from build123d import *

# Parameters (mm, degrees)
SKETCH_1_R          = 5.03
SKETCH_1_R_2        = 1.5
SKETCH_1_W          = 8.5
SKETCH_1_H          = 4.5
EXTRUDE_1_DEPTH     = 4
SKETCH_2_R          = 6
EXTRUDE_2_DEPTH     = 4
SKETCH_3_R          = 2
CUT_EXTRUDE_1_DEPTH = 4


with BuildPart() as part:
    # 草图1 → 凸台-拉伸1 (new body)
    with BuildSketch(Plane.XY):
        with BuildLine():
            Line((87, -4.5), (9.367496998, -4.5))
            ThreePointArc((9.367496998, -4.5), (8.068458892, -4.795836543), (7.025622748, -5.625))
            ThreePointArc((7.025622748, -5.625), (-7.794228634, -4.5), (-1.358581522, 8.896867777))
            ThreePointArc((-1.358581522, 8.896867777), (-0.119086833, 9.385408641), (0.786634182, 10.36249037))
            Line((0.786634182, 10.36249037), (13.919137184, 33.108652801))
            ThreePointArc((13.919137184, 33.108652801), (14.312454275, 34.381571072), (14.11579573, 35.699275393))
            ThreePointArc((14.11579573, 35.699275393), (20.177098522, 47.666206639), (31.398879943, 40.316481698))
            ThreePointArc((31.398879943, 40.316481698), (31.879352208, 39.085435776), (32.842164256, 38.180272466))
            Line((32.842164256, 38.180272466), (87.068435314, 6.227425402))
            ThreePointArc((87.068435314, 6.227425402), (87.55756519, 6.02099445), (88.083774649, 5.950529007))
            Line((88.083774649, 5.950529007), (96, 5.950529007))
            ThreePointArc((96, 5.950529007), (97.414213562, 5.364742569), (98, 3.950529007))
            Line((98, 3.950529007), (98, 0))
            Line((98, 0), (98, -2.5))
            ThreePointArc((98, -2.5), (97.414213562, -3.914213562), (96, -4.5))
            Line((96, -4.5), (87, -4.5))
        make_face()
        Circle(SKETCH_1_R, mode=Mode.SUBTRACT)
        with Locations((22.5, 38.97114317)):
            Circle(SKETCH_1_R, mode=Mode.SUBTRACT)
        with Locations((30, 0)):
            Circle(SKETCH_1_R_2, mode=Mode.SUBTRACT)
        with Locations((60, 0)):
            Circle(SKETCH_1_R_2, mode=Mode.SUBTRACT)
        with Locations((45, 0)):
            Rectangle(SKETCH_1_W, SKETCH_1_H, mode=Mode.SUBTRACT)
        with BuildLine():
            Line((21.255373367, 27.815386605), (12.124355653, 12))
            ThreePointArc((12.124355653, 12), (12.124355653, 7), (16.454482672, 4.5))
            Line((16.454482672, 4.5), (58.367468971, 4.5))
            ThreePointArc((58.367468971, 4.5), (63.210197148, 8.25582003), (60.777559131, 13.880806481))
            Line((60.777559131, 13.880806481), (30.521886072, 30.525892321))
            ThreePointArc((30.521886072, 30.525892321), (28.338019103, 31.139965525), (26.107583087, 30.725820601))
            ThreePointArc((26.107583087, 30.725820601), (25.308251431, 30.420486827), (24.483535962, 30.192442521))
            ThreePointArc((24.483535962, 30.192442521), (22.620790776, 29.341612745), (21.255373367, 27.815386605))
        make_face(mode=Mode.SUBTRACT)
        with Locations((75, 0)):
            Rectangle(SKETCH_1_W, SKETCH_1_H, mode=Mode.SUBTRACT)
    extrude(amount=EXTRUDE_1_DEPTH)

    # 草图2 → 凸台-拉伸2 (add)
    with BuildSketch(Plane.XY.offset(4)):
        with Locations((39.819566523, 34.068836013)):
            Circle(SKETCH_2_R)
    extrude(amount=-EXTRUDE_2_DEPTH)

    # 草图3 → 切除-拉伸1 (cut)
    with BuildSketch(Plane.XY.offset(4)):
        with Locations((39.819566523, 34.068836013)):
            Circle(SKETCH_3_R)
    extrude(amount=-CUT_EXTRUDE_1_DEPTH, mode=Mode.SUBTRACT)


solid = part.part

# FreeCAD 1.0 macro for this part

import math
import FreeCAD as App
import Part
import Sketcher
from FreeCAD import Vector
Q = App.Units.Quantity

doc = App.newDocument("Part")
body = doc.addObject("PartDesign::Body", "Body")

sketch1 = doc.addObject("Sketcher::SketchObject", "Sketch")
body.addObject(sketch1)
sketch1.AttachmentSupport = (doc.XY_Plane, [""])
sketch1.MapMode = "FlatFace"
sketch1.addGeometry(Part.ArcOfCircle(Part.Circle(Vector(9.367497, -7.5, 0), Vector(0, 0, 1), 3), math.radians(90), math.radians(141.317813)), False)
sketch1.addGeometry(Part.LineSegment(Vector(9.367497, -4.5, 0), Vector(96, -4.5, 0)), False)
sketch1.addGeometry(Part.ArcOfCircle(Part.Circle(Vector(96, -2.5, 0), Vector(0, 0, 1), 2), math.radians(-90), math.radians(0)), False)
sketch1.addGeometry(Part.LineSegment(Vector(98, -2.5, 0), Vector(98, 3.950529, 0)), False)
sketch1.addGeometry(Part.ArcOfCircle(Part.Circle(Vector(96, 3.950529, 0), Vector(0, 0, 1), 2), math.radians(0), math.radians(90)), False)
sketch1.addGeometry(Part.LineSegment(Vector(96, 5.950529, 0), Vector(88.083775, 5.950529, 0)), False)
sketch1.addGeometry(Part.ArcOfCircle(Part.Circle(Vector(88.083775, 7.950529, 0), Vector(0, 0, 1), 2), math.radians(-120.508732), math.radians(-90)), False)
sketch1.addGeometry(Part.LineSegment(Vector(87.068435, 6.227425, 0), Vector(32.842164, 38.180272, 0)), False)
sketch1.addGeometry(Part.ArcOfCircle(Part.Circle(Vector(34.365173, 40.764928, 0), Vector(0, 0, 1), 3), math.radians(-171.403088), math.radians(-120.508732)), False)
sketch1.addGeometry(Part.ArcOfCircle(Part.Circle(Vector(22.5, 38.971143, 0), Vector(0, 0, 1), 9), math.radians(8.596912), math.radians(201.317813)), False)
sketch1.addGeometry(Part.ArcOfCircle(Part.Circle(Vector(11.321061, 34.608653, 0), Vector(0, 0, 1), 3), math.radians(-30), math.radians(21.317813)), False)
sketch1.addGeometry(Part.LineSegment(Vector(13.919137, 33.108653, 0), Vector(0.786634, 10.36249, 0)), False)
sketch1.addGeometry(Part.ArcOfCircle(Part.Circle(Vector(-1.811442, 11.86249, 0), Vector(0, 0, 1), 3), math.radians(-81.317813), math.radians(-30)), False)
sketch1.addGeometry(Part.ArcOfCircle(Part.Circle(Vector(0, 0, 0), Vector(0, 0, 1), 9), math.radians(98.682187), math.radians(321.317813)), False)
sketch1.addGeometry(Part.LineSegment(Vector(70.75, -2.25, 0), Vector(70.75, 2.25, 0)), False)
sketch1.addGeometry(Part.LineSegment(Vector(70.75, 2.25, 0), Vector(79.25, 2.25, 0)), False)
sketch1.addGeometry(Part.LineSegment(Vector(79.25, 2.25, 0), Vector(79.25, -2.25, 0)), False)
sketch1.addGeometry(Part.LineSegment(Vector(79.25, -2.25, 0), Vector(70.75, -2.25, 0)), False)
sketch1.addGeometry(Part.Circle(Vector(60, 0, 0), Vector(0, 0, 1), 1.5), False)
sketch1.addGeometry(Part.LineSegment(Vector(40.75, -2.25, 0), Vector(40.75, 2.25, 0)), False)
sketch1.addGeometry(Part.LineSegment(Vector(40.75, 2.25, 0), Vector(49.25, 2.25, 0)), False)
sketch1.addGeometry(Part.LineSegment(Vector(49.25, 2.25, 0), Vector(49.25, -2.25, 0)), False)
sketch1.addGeometry(Part.LineSegment(Vector(49.25, -2.25, 0), Vector(40.75, -2.25, 0)), False)
sketch1.addGeometry(Part.ArcOfCircle(Part.Circle(Vector(25.5855, 25.315387, 0), Vector(0, 0, 1), 5), math.radians(102.73211), math.radians(150)), False)
sketch1.addGeometry(Part.ArcOfCircle(Part.Circle(Vector(22.5, 38.971143, 0), Vector(0, 0, 1), 9), math.radians(-77.26789), math.radians(-66.369138)), False)
sketch1.addGeometry(Part.ArcOfCircle(Part.Circle(Vector(28.111796, 26.145086, 0), Vector(0, 0, 1), 5), math.radians(61.182714), math.radians(113.630862)), False)
sketch1.addGeometry(Part.LineSegment(Vector(30.521886, 30.525892, 0), Vector(60.777559, 13.880806, 0)), False)
sketch1.addGeometry(Part.ArcOfCircle(Part.Circle(Vector(58.367469, 9.5, 0), Vector(0, 0, 1), 5), math.radians(-90), math.radians(61.182714)), False)
sketch1.addGeometry(Part.LineSegment(Vector(58.367469, 4.5, 0), Vector(16.454483, 4.5, 0)), False)
sketch1.addGeometry(Part.ArcOfCircle(Part.Circle(Vector(16.454483, 9.5, 0), Vector(0, 0, 1), 5), math.radians(150), math.radians(270)), False)
sketch1.addGeometry(Part.LineSegment(Vector(12.124356, 12, 0), Vector(21.255373, 27.815387, 0)), False)
sketch1.addGeometry(Part.Circle(Vector(30, 0, 0), Vector(0, 0, 1), 1.5), False)
sketch1.addGeometry(Part.Circle(Vector(0, 0, 0), Vector(0, 0, 1), 5.03), False)
sketch1.addGeometry(Part.Circle(Vector(22.5, 38.971143, 0), Vector(0, 0, 1), 5.03), False)
sketch1.addConstraint(Sketcher.Constraint("Tangent", 0, 1, 1, 1))
sketch1.addConstraint(Sketcher.Constraint("Tangent", 1, 2, 2, 1))
sketch1.addConstraint(Sketcher.Constraint("Tangent", 2, 2, 3, 1))
sketch1.addConstraint(Sketcher.Constraint("Tangent", 3, 2, 4, 1))
sketch1.addConstraint(Sketcher.Constraint("Tangent", 4, 2, 5, 1))
sketch1.addConstraint(Sketcher.Constraint("Tangent", 5, 2, 6, 2))
sketch1.addConstraint(Sketcher.Constraint("Tangent", 6, 1, 7, 1))
sketch1.addConstraint(Sketcher.Constraint("Tangent", 7, 2, 8, 2))
sketch1.addConstraint(Sketcher.Constraint("Tangent", 8, 1, 9, 1))
sketch1.addConstraint(Sketcher.Constraint("Tangent", 9, 2, 10, 2))
sketch1.addConstraint(Sketcher.Constraint("Tangent", 10, 1, 11, 1))
sketch1.addConstraint(Sketcher.Constraint("Tangent", 11, 2, 12, 2))
sketch1.addConstraint(Sketcher.Constraint("Tangent", 12, 1, 13, 1))
sketch1.addConstraint(Sketcher.Constraint("Tangent", 13, 2, 0, 2))
sketch1.addConstraint(Sketcher.Constraint("Coincident", 14, 2, 15, 1))
sketch1.addConstraint(Sketcher.Constraint("Coincident", 15, 2, 16, 1))
sketch1.addConstraint(Sketcher.Constraint("Coincident", 16, 2, 17, 1))
sketch1.addConstraint(Sketcher.Constraint("Coincident", 17, 2, 14, 1))
sketch1.addConstraint(Sketcher.Constraint("Coincident", 19, 2, 20, 1))
sketch1.addConstraint(Sketcher.Constraint("Coincident", 20, 2, 21, 1))
sketch1.addConstraint(Sketcher.Constraint("Coincident", 21, 2, 22, 1))
sketch1.addConstraint(Sketcher.Constraint("Coincident", 22, 2, 19, 1))
sketch1.addConstraint(Sketcher.Constraint("Tangent", 23, 1, 24, 1))
sketch1.addConstraint(Sketcher.Constraint("Tangent", 24, 2, 25, 2))
sketch1.addConstraint(Sketcher.Constraint("Tangent", 25, 1, 26, 1))
sketch1.addConstraint(Sketcher.Constraint("Tangent", 26, 2, 27, 2))
sketch1.addConstraint(Sketcher.Constraint("Tangent", 27, 1, 28, 1))
sketch1.addConstraint(Sketcher.Constraint("Tangent", 28, 2, 29, 2))
sketch1.addConstraint(Sketcher.Constraint("Tangent", 29, 1, 30, 1))
sketch1.addConstraint(Sketcher.Constraint("Tangent", 30, 2, 23, 2))
sketch1.addConstraint(Sketcher.Constraint("Horizontal", 1))
sketch1.addConstraint(Sketcher.Constraint("Vertical", 3))
sketch1.addConstraint(Sketcher.Constraint("Horizontal", 5))
sketch1.addConstraint(Sketcher.Constraint("Vertical", 14))
sketch1.addConstraint(Sketcher.Constraint("Horizontal", 15))
sketch1.addConstraint(Sketcher.Constraint("Vertical", 16))
sketch1.addConstraint(Sketcher.Constraint("Horizontal", 17))
sketch1.addConstraint(Sketcher.Constraint("Vertical", 19))
sketch1.addConstraint(Sketcher.Constraint("Horizontal", 20))
sketch1.addConstraint(Sketcher.Constraint("Vertical", 21))
sketch1.addConstraint(Sketcher.Constraint("Horizontal", 22))
sketch1.addConstraint(Sketcher.Constraint("Horizontal", 28))
sketch1.addConstraint(Sketcher.Constraint("Coincident", 13, 3, -1, 1))
sketch1.addConstraint(Sketcher.Constraint("Coincident", 32, 3, -1, 1))
sketch1.addConstraint(Sketcher.Constraint("Coincident", 24, 3, 9, 3))
sketch1.addConstraint(Sketcher.Constraint("Coincident", 33, 3, 9, 3))
sketch1.addConstraint(Sketcher.Constraint("Equal", 2, 4))
sketch1.addConstraint(Sketcher.Constraint("Equal", 4, 6))
sketch1.addConstraint(Sketcher.Constraint("Equal", 0, 8))
sketch1.addConstraint(Sketcher.Constraint("Equal", 8, 10))
sketch1.addConstraint(Sketcher.Constraint("Equal", 10, 12))
sketch1.addConstraint(Sketcher.Constraint("Equal", 9, 13))
sketch1.addConstraint(Sketcher.Constraint("Equal", 13, 24))
sketch1.addConstraint(Sketcher.Constraint("Equal", 23, 25))
sketch1.addConstraint(Sketcher.Constraint("Equal", 25, 27))
sketch1.addConstraint(Sketcher.Constraint("Equal", 27, 29))
sketch1.addConstraint(Sketcher.Constraint("Equal", 18, 31))
sketch1.addConstraint(Sketcher.Constraint("Equal", 32, 33))
sketch1.addConstraint(Sketcher.Constraint("PointOnObject", 18, 3, -1))
sketch1.addConstraint(Sketcher.Constraint("PointOnObject", 31, 3, -1))
sketch1.addConstraint(Sketcher.Constraint("Parallel", 11, 30))
sketch1.addConstraint(Sketcher.Constraint("Horizontal", 15, 2, 19, 2))
sketch1.addConstraint(Sketcher.Constraint("Horizontal", 17, 2, 21, 2))
sketch1.addConstraint(Sketcher.Constraint("Equal", 17, 20))
sketch1.addConstraint(Sketcher.Constraint("Diameter", 18, Q("3 mm")))
sketch1.addConstraint(Sketcher.Constraint("Radius", 0, Q("3 mm")))
sketch1.addConstraint(Sketcher.Constraint("Radius", 2, Q("2 mm")))
sketch1.addConstraint(Sketcher.Constraint("Radius", 9, Q("9 mm")))
sketch1.addConstraint(Sketcher.Constraint("Radius", 23, Q("5 mm")))
sketch1.addConstraint(Sketcher.Constraint("Diameter", 32, Q("10.06 mm")))
sketch1.addConstraint(Sketcher.Constraint("Angle", 11, Q("-120 deg")))
sketch1.addConstraint(Sketcher.Constraint("DistanceX", 15, 1, 15, 2, Q("8.5 mm")))
sketch1.addConstraint(Sketcher.Constraint("DistanceY", 14, 1, 14, 2, Q("4.5 mm")))
sketch1.addConstraint(Sketcher.Constraint("DistanceX", -1, 1, 2, 3, Q("96 mm")))
sketch1.addConstraint(Sketcher.Constraint("DistanceX", -1, 1, 18, 3, Q("60 mm")))
sketch1.addConstraint(Sketcher.Constraint("DistanceX", -1, 1, 31, 3, Q("30 mm")))
sketch1.addConstraint(Sketcher.Constraint("DistanceY", -1, 1, 29, 1, Q("12 mm")))
sketch1.addConstraint(Sketcher.Constraint("DistanceY", 0, 3, 29, 3, Q("17 mm")))
sketch1.addConstraint(Sketcher.Constraint("DistanceX", -1, 1, 9, 3, Q("22.5 mm")))
sketch1.addConstraint(Sketcher.Constraint("DistanceX", 20, 2, 14, 2, Q("21.5 mm")))
sketch1.addConstraint(Sketcher.Constraint("DistanceX", -1, 1, 14, 2, Q("70.75 mm")))
sketch1.addConstraint(Sketcher.Constraint("DistanceY", -1, 1, 14, 2, Q("2.25 mm")))
sketch1.addConstraint(Sketcher.Constraint("DistanceY", 3, 1, 3, 2, Q("6.450529 mm")))
sketch1.addConstraint(Sketcher.Constraint("DistanceX", -1, 1, 23, 3, Q("25.5855 mm")))
sketch1.addConstraint(Sketcher.Constraint("DistanceX", 8, 3, 6, 3, Q("53.718601 mm")))
sketch1.addConstraint(Sketcher.Constraint("DistanceY", 6, 3, 8, 3, Q("32.814399 mm")))
sketch1.addConstraint(Sketcher.Constraint("DistanceY", 23, 3, 25, 3, Q("0.829699 mm")))
sketch1.addConstraint(Sketcher.Constraint("Distance", 26, Q("34.532081 mm")))
sketch1.addConstraint(Sketcher.Constraint("DistanceX", 5, 2, 5, 1, Q("7.916225 mm")))
sketch1.addConstraint(Sketcher.Constraint("DistanceX", -1, 1, 10, 3, Q("11.321061 mm")))
pad1 = doc.addObject("PartDesign::Pad", "Pad")
body.addObject(pad1)
pad1.Profile = sketch1
pad1.Length = 4

sketch2 = doc.addObject("Sketcher::SketchObject", "Sketch001")
body.addObject(sketch2)
sketch2.AttachmentSupport = (doc.XY_Plane, [""])
sketch2.MapMode = "FlatFace"
sketch2.AttachmentOffset = App.Placement(Vector(0, 0, 4), App.Rotation())
sketch2.addGeometry(Part.Circle(Vector(39.819567, 34.068836, 0), Vector(0, 0, 1), 6), False)
sketch2.addConstraint(Sketcher.Constraint("Diameter", 0, Q("12 mm")))
sketch2.addConstraint(Sketcher.Constraint("DistanceX", -1, 1, 0, 3, Q("39.819567 mm")))
sketch2.addConstraint(Sketcher.Constraint("DistanceY", -1, 1, 0, 3, Q("34.068836 mm")))
pad2 = doc.addObject("PartDesign::Pad", "Pad001")
body.addObject(pad2)
pad2.Profile = sketch2
pad2.Length = 4
pad2.Reversed = True

sketch3 = doc.addObject("Sketcher::SketchObject", "Sketch002")
body.addObject(sketch3)
sketch3.AttachmentSupport = (doc.XY_Plane, [""])
sketch3.MapMode = "FlatFace"
sketch3.AttachmentOffset = App.Placement(Vector(0, 0, 4), App.Rotation())
sketch3.addGeometry(Part.Circle(Vector(39.819567, 34.068836, 0), Vector(0, 0, 1), 2), False)
sketch3.addConstraint(Sketcher.Constraint("Diameter", 0, Q("4 mm")))
sketch3.addConstraint(Sketcher.Constraint("DistanceX", -1, 1, 0, 3, Q("39.819567 mm")))
sketch3.addConstraint(Sketcher.Constraint("DistanceY", -1, 1, 0, 3, Q("34.068836 mm")))
pocket1 = doc.addObject("PartDesign::Pocket", "Pocket")
body.addObject(pocket1)
pocket1.Profile = sketch3
pocket1.Length = 4

doc.recompute()
